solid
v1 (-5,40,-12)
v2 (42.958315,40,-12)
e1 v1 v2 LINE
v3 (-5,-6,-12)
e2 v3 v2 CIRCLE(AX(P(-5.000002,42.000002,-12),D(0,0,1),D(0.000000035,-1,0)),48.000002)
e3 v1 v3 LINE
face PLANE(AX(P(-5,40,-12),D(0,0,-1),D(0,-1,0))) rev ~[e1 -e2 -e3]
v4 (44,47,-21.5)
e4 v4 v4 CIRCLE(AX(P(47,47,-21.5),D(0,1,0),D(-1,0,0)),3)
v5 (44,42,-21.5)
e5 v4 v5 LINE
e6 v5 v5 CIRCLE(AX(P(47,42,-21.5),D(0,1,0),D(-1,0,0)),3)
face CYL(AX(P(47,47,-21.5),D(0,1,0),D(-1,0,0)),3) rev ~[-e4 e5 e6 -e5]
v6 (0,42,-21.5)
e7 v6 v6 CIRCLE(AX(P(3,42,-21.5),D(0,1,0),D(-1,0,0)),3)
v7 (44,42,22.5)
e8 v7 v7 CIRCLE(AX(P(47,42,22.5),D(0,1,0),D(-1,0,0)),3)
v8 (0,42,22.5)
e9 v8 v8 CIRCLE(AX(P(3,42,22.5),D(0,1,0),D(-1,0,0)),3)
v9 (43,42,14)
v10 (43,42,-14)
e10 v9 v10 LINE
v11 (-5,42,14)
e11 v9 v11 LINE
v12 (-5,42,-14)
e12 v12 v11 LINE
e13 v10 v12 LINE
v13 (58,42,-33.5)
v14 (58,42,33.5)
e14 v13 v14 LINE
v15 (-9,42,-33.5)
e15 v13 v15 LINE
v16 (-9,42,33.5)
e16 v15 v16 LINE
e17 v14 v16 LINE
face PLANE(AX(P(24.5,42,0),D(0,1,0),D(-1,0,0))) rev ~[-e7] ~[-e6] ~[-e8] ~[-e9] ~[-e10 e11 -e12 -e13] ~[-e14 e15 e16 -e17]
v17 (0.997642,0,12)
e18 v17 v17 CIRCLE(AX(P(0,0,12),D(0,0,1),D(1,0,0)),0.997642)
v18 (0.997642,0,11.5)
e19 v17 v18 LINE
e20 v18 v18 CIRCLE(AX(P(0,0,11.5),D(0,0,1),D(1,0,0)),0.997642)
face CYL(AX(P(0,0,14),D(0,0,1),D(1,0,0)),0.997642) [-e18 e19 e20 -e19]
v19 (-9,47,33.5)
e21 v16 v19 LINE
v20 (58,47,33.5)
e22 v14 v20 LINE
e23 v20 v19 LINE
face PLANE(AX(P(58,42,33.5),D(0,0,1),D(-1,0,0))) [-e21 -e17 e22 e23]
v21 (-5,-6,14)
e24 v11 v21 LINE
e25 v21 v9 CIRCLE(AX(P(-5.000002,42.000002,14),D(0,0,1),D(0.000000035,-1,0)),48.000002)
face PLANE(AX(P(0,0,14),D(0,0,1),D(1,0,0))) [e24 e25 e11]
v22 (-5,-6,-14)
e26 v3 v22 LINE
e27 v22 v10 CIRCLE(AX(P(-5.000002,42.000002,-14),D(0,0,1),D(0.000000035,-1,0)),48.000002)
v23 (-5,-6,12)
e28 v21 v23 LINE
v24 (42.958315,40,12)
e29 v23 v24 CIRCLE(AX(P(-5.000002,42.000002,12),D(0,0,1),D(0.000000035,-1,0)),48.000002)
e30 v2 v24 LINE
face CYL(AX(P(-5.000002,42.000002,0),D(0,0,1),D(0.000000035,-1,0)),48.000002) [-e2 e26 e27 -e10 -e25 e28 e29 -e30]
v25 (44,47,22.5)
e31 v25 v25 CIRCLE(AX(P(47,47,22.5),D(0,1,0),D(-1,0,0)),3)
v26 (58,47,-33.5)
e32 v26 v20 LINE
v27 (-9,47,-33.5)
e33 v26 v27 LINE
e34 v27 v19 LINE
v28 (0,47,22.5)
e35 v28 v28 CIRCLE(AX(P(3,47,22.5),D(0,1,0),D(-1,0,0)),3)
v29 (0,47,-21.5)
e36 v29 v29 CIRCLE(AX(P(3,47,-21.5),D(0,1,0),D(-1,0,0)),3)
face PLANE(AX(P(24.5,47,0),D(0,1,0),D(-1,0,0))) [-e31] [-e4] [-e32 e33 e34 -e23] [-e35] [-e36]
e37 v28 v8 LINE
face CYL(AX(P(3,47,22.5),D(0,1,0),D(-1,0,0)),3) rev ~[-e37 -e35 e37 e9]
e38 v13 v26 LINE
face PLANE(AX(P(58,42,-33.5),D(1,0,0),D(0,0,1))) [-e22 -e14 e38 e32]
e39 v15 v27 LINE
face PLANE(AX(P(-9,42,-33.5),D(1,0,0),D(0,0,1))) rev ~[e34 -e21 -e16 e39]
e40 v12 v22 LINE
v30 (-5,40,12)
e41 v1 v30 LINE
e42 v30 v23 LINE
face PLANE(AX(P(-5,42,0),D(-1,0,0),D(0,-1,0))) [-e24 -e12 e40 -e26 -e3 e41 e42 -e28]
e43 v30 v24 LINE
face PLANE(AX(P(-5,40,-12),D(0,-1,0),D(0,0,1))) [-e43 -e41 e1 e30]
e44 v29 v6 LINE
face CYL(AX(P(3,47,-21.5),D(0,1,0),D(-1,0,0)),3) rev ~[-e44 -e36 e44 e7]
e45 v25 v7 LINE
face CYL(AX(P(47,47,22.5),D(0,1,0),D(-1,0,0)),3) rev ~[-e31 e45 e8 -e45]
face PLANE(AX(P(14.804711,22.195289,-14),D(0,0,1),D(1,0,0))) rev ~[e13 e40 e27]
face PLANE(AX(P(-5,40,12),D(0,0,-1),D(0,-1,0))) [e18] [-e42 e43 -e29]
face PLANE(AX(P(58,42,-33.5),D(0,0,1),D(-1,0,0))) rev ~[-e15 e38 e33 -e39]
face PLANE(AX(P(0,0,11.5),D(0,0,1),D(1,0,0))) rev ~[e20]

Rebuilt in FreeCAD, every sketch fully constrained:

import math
import FreeCAD as App
import Part
import Sketcher

V = App.Vector
Q = App.Units.Quantity

doc = App.newDocument("Part")
params = doc.addObject("Spreadsheet::Sheet", "Params")
for row, (alias, value) in enumerate([
    ("sketch1_radius", "48.000002 mm"),
    ("pad1_length", "28 mm"),
    ("sketch2_width", "46 mm"),
    ("sketch2_height", "24 mm"),
    ("pocket1_length", "55 mm"),
    ("pad2_length", "2.5 mm"),
    ("sketch4_width", "67 mm"),
    ("pad3_length", "5 mm"),
    ("sketch5_diameter", "6 mm"),
    ("pocket2_length", "25 mm"),
], start=1):
    params.set(f"A{row}", alias)
    params.set(f"B{row}", "=" + value)
    params.setAlias(f"B{row}", alias)

body = doc.addObject("PartDesign::Body", "Body")

# Sketch on XY plane
sketch1 = doc.addObject("Sketcher::SketchObject", "Sketch")
body.addObject(sketch1)
sketch1.AttachmentSupport = (doc.XY_Plane, [""])
sketch1.MapMode = "FlatFace"
sketch1.addGeometry(Part.LineSegment(V(43, 42, 0), V(-5, 42, 0)), False)
sketch1.addGeometry(Part.LineSegment(V(-5, 42, 0), V(-5, -6, 0)), False)
sketch1.addGeometry(Part.ArcOfCircle(Part.Circle(V(-5, 42, 0), V(0, 0, 1), 48), math.radians(-90), math.radians(0)), False)
sketch1.addConstraint(Sketcher.Constraint("Coincident", 0, 2, 1, 1))
sketch1.addConstraint(Sketcher.Constraint("Coincident", 1, 2, 2, 1))
sketch1.addConstraint(Sketcher.Constraint("Coincident", 2, 2, 0, 1))
sketch1.addConstraint(Sketcher.Constraint("Horizontal", 0))
sketch1.addConstraint(Sketcher.Constraint("Vertical", 1))
sketch1.addConstraint(Sketcher.Constraint("Coincident", 0, 2, 2, 3))
sketch1.addConstraint(Sketcher.Constraint("Radius", 2, Q("48.000002 mm")))
sketch1.addConstraint(Sketcher.Constraint("DistanceX", 2, 3, -1, 1, Q("5.000002 mm")))
sketch1.addConstraint(Sketcher.Constraint("DistanceY", -1, 1, 2, 3, Q("42.000002 mm")))
sketch1.setExpression("Constraints[6]", "Params.sketch1_radius")
pad1 = doc.addObject("PartDesign::Pad", "Pad")
body.addObject(pad1)
pad1.Profile = sketch1
pad1.setExpression("Length", "Params.pad1_length")
pad1.Midplane = True

# Sketch on YZ plane
sketch2 = doc.addObject("Sketcher::SketchObject", "Sketch001")
body.addObject(sketch2)
sketch2.AttachmentSupport = (doc.YZ_Plane, [""])
sketch2.MapMode = "FlatFace"
sketch2.AttachmentOffset = App.Placement(V(0, 0, -5), App.Rotation())
sketch2.addGeometry(Part.LineSegment(V(40, 12, 0), V(40, -12, 0)), False)
sketch2.addGeometry(Part.LineSegment(V(40, -12, 0), V(-6, -12, 0)), False)
sketch2.addGeometry(Part.LineSegment(V(-6, -12, 0), V(-6, 12, 0)), False)
sketch2.addGeometry(Part.LineSegment(V(-6, 12, 0), V(40, 12, 0)), False)
sketch2.addConstraint(Sketcher.Constraint("Coincident", 0, 2, 1, 1))
sketch2.addConstraint(Sketcher.Constraint("Coincident", 1, 2, 2, 1))
sketch2.addConstraint(Sketcher.Constraint("Coincident", 2, 2, 3, 1))
sketch2.addConstraint(Sketcher.Constraint("Coincident", 3, 2, 0, 1))
sketch2.addConstraint(Sketcher.Constraint("Vertical", 0))
sketch2.addConstraint(Sketcher.Constraint("Horizontal", 1))
sketch2.addConstraint(Sketcher.Constraint("Vertical", 2))
sketch2.addConstraint(Sketcher.Constraint("Horizontal", 3))
sketch2.addConstraint(Sketcher.Constraint("DistanceX", 1, 2, 1, 1, Q("46 mm")))
sketch2.addConstraint(Sketcher.Constraint("DistanceY", 0, 2, 0, 1, Q("24 mm")))
sketch2.addConstraint(Sketcher.Constraint("DistanceX", -1, 1, 0, 2, Q("40 mm")))
sketch2.addConstraint(Sketcher.Constraint("DistanceY", 0, 2, -1, 1, Q("12 mm")))
sketch2.setExpression("Constraints[8]", "Params.sketch2_width")
sketch2.setExpression("Constraints[9]", "Params.sketch2_height")
pocket1 = doc.addObject("PartDesign::Pocket", "Pocket")
body.addObject(pocket1)
pocket1.Profile = sketch2
pocket1.setExpression("Length", "Params.pocket1_length")
pocket1.Reversed = True

# Sketch on XY plane
sketch3 = doc.addObject("Sketcher::SketchObject", "Sketch002")
body.addObject(sketch3)
sketch3.AttachmentSupport = (doc.XY_Plane, [""])
sketch3.MapMode = "FlatFace"
sketch3.AttachmentOffset = App.Placement(V(0, 0, 14), App.Rotation())
sketch3.addGeometry(Part.Circle(V(0, 0, 0), V(0, 0, 1), 1), False)
sketch3.addConstraint(Sketcher.Constraint("Coincident", 0, 3, -1, 1))
sketch3.addConstraint(Sketcher.Constraint("Diameter", 0, Q("1.995284 mm")))
pad2 = doc.addObject("PartDesign::Pad", "Pad001")
body.addObject(pad2)
pad2.Profile = sketch3
pad2.setExpression("Length", "Params.pad2_length")
pad2.Reversed = True

# Sketch on XZ plane
sketch4 = doc.addObject("Sketcher::SketchObject", "Sketch003")
body.addObject(sketch4)
sketch4.AttachmentSupport = (doc.XZ_Plane, [""])
sketch4.MapMode = "FlatFace"
sketch4.AttachmentOffset = App.Placement(V(0, 0, -42), App.Rotation())
sketch4.addGeometry(Part.LineSegment(V(58, 34, 0), V(58, -34, 0)), False)
sketch4.addGeometry(Part.LineSegment(V(58, -34, 0), V(-9, -34, 0)), False)
sketch4.addGeometry(Part.LineSegment(V(-9, -34, 0), V(-9, 34, 0)), False)
sketch4.addGeometry(Part.LineSegment(V(-9, 34, 0), V(58, 34, 0)), False)
sketch4.addConstraint(Sketcher.Constraint("Coincident", 0, 2, 1, 1))
sketch4.addConstraint(Sketcher.Constraint("Coincident", 1, 2, 2, 1))
sketch4.addConstraint(Sketcher.Constraint("Coincident", 2, 2, 3, 1))
sketch4.addConstraint(Sketcher.Constraint("Coincident", 3, 2, 0, 1))
sketch4.addConstraint(Sketcher.Constraint("Vertical", 0))
sketch4.addConstraint(Sketcher.Constraint("Horizontal", 1))
sketch4.addConstraint(Sketcher.Constraint("Vertical", 2))
sketch4.addConstraint(Sketcher.Constraint("Horizontal", 3))
sketch4.addConstraint(Sketcher.Constraint("Equal", 3, 0))
sketch4.addConstraint(Sketcher.Constraint("DistanceX", 1, 2, 1, 1, Q("67 mm")))
sketch4.addConstraint(Sketcher.Constraint("DistanceX", -1, 1, 0, 2, Q("58 mm")))
sketch4.addConstraint(Sketcher.Constraint("DistanceY", 0, 2, -1, 1, Q("33.5 mm")))
sketch4.setExpression("Constraints[9]", "Params.sketch4_width")
pad3 = doc.addObject("PartDesign::Pad", "Pad002")
body.addObject(pad3)
pad3.Profile = sketch4
pad3.setExpression("Length", "Params.pad3_length")
pad3.Reversed = True

# Sketch on XZ plane
sketch5 = doc.addObject("Sketcher::SketchObject", "Sketch004")
body.addObject(sketch5)
sketch5.AttachmentSupport = (doc.XZ_Plane, [""])
sketch5.MapMode = "FlatFace"
sketch5.AttachmentOffset = App.Placement(V(0, 0, -47), App.Rotation())
sketch5.addGeometry(Part.Circle(V(47, 22.5, 0), V(0, 0, 1), 3), False)
sketch5.addGeometry(Part.Circle(V(3, 22.5, 0), V(0, 0, 1), 3), False)
sketch5.addGeometry(Part.Circle(V(47, -21.5, 0), V(0, 0, 1), 3), False)
sketch5.addGeometry(Part.Circle(V(3, -21.5, 0), V(0, 0, 1), 3), False)
sketch5.addConstraint(Sketcher.Constraint("Equal", 0, 1))
sketch5.addConstraint(Sketcher.Constraint("Equal", 1, 2))
sketch5.addConstraint(Sketcher.Constraint("Equal", 2, 3))
sketch5.addConstraint(Sketcher.Constraint("Horizontal", 0, 3, 1, 3))
sketch5.addConstraint(Sketcher.Constraint("Horizontal", 2, 3, 3, 3))
sketch5.addConstraint(Sketcher.Constraint("Vertical", 0, 3, 2, 3))
sketch5.addConstraint(Sketcher.Constraint("Vertical", 1, 3, 3, 3))
sketch5.addConstraint(Sketcher.Constraint("Diameter", 0, Q("6 mm")))
sketch5.addConstraint(Sketcher.Constraint("DistanceX", -1, 1, 0, 3, Q("47 mm")))
sketch5.addConstraint(Sketcher.Constraint("DistanceX", -1, 1, 1, 3, Q("3 mm")))
sketch5.addConstraint(Sketcher.Constraint("DistanceY", 2, 3, 0, 3, Q("44 mm")))
sketch5.addConstraint(Sketcher.Constraint("DistanceY", -1, 1, 0, 3, Q("22.5 mm")))
sketch5.setExpression("Constraints[7]", "Params.sketch5_diameter")
pocket2 = doc.addObject("PartDesign::Pocket", "Pocket001")
body.addObject(pocket2)
pocket2.Profile = sketch5
pocket2.setExpression("Length", "Params.pocket2_length")
pocket2.Reversed = True

doc.recompute()
